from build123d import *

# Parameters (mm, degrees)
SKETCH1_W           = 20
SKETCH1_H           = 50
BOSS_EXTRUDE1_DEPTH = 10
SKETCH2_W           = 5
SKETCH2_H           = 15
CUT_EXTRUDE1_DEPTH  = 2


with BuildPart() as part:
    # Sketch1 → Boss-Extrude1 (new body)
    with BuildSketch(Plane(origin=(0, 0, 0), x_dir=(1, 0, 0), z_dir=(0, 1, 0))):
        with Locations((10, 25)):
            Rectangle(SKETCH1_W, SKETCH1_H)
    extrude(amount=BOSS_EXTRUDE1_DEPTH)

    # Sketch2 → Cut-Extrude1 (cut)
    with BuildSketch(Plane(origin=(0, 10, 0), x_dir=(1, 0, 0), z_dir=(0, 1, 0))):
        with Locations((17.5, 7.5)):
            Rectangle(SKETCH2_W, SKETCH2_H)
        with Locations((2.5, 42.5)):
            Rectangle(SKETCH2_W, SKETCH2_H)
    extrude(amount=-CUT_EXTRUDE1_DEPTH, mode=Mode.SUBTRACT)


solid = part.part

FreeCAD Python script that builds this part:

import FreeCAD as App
import Part
import Sketcher
from FreeCAD import Vector
Q = App.Units.Quantity

doc = App.newDocument("Part")
body = doc.addObject("PartDesign::Body", "Body")

# Sketch on XZ plane
sketch1 = body.newObject("Sketcher::SketchObject", "Sketch")
sketch1.AttachmentSupport = (doc.getObject("XZ_Plane"), [""])
sketch1.MapMode = "FlatFace"
sketch1.addGeometry(Part.LineSegment(Vector(0, -50, 0), Vector(0, 0, 0)), False)
sketch1.addGeometry(Part.LineSegment(Vector(0, 0, 0), Vector(20, 0, 0)), False)
sketch1.addGeometry(Part.LineSegment(Vector(20, 0, 0), Vector(20, -50, 0)), False)
sketch1.addGeometry(Part.LineSegment(Vector(20, -50, 0), Vector(0, -50, 0)), False)
sketch1.addConstraint(Sketcher.Constraint("Coincident", 0, 2, 1, 1))
sketch1.addConstraint(Sketcher.Constraint("Coincident", 1, 2, 2, 1))
sketch1.addConstraint(Sketcher.Constraint("Coincident", 2, 2, 3, 1))
sketch1.addConstraint(Sketcher.Constraint("Coincident", 3, 2, 0, 1))
sketch1.addConstraint(Sketcher.Constraint("Vertical", 0))
sketch1.addConstraint(Sketcher.Constraint("Horizontal", 1))
sketch1.addConstraint(Sketcher.Constraint("Vertical", 2))
sketch1.addConstraint(Sketcher.Constraint("Horizontal", 3))
sketch1.addConstraint(Sketcher.Constraint("Coincident", 0, 2, -1, 1))
sketch1.addConstraint(Sketcher.Constraint("DistanceX", 1, 1, 1, 2, Q("20 mm")))
sketch1.addConstraint(Sketcher.Constraint("DistanceY", 0, 1, 0, 2, Q("50 mm")))
pad1 = body.newObject("PartDesign::Pad", "Pad")
pad1.Profile = sketch1
pad1.Length = 10
pad1.Reversed = True

# Sketch on XZ plane
sketch2 = body.newObject("Sketcher::SketchObject", "Sketch001")
sketch2.AttachmentSupport = (doc.getObject("XZ_Plane"), [""])
sketch2.MapMode = "FlatFace"
sketch2.AttachmentOffset = App.Placement(Vector(0, 0, -10), App.Rotation())
sketch2.addGeometry(Part.LineSegment(Vector(15, -15, 0), Vector(15, 0, 0)), False)
sketch2.addGeometry(Part.LineSegment(Vector(15, 0, 0), Vector(20, 0, 0)), False)
sketch2.addGeometry(Part.LineSegment(Vector(20, 0, 0), Vector(20, -15, 0)), False)
sketch2.addGeometry(Part.LineSegment(Vector(20, -15, 0), Vector(15, -15, 0)), False)
sketch2.addGeometry(Part.LineSegment(Vector(0, -50, 0), Vector(0, -35, 0)), False)
sketch2.addGeometry(Part.LineSegment(Vector(0, -35, 0), Vector(5, -35, 0)), False)
sketch2.addGeometry(Part.LineSegment(Vector(5, -35, 0), Vector(5, -50, 0)), False)
sketch2.addGeometry(Part.LineSegment(Vector(5, -50, 0), Vector(0, -50, 0)), False)
sketch2.addConstraint(Sketcher.Constraint("Coincident", 0, 2, 1, 1))
sketch2.addConstraint(Sketcher.Constraint("Coincident", 1, 2, 2, 1))
sketch2.addConstraint(Sketcher.Constraint("Coincident", 2, 2, 3, 1))
sketch2.addConstraint(Sketcher.Constraint("Coincident", 3, 2, 0, 1))
sketch2.addConstraint(Sketcher.Constraint("Coincident", 4, 2, 5, 1))
sketch2.addConstraint(Sketcher.Constraint("Coincident", 5, 2, 6, 1))
sketch2.addConstraint(Sketcher.Constraint("Coincident", 6, 2, 7, 1))
sketch2.addConstraint(Sketcher.Constraint("Coincident", 7, 2, 4, 1))
sketch2.addConstraint(Sketcher.Constraint("Vertical", 0))
sketch2.addConstraint(Sketcher.Constraint("Horizontal", 1))
sketch2.addConstraint(Sketcher.Constraint("Vertical", 2))
sketch2.addConstraint(Sketcher.Constraint("Horizontal", 3))
sketch2.addConstraint(Sketcher.Constraint("Vertical", 4))
sketch2.addConstraint(Sketcher.Constraint("Horizontal", 5))
sketch2.addConstraint(Sketcher.Constraint("Vertical", 6))
sketch2.addConstraint(Sketcher.Constraint("Horizontal", 7))
sketch2.addConstraint(Sketcher.Constraint("PointOnObject", 0, 2, -1))
sketch2.addConstraint(Sketcher.Constraint("PointOnObject", 4, 2, -2))
sketch2.addConstraint(Sketcher.Constraint("Equal", 3, 5))
sketch2.addConstraint(Sketcher.Constraint("Equal", 2, 4))
sketch2.addConstraint(Sketcher.Constraint("DistanceX", 1, 1, 1, 2, Q("5 mm")))
sketch2.addConstraint(Sketcher.Constraint("DistanceY", 0, 1, 0, 2, Q("15 mm")))
sketch2.addConstraint(Sketcher.Constraint("DistanceX", -1, 1, 0, 2, Q("15 mm")))
sketch2.addConstraint(Sketcher.Constraint("DistanceY", 4, 2, -1, 1, Q("35 mm")))
pocket1 = body.newObject("PartDesign::Pocket", "Pocket")
pocket1.Profile = sketch2
pocket1.Length = 2
pocket1.Reversed = True

doc.recompute()
